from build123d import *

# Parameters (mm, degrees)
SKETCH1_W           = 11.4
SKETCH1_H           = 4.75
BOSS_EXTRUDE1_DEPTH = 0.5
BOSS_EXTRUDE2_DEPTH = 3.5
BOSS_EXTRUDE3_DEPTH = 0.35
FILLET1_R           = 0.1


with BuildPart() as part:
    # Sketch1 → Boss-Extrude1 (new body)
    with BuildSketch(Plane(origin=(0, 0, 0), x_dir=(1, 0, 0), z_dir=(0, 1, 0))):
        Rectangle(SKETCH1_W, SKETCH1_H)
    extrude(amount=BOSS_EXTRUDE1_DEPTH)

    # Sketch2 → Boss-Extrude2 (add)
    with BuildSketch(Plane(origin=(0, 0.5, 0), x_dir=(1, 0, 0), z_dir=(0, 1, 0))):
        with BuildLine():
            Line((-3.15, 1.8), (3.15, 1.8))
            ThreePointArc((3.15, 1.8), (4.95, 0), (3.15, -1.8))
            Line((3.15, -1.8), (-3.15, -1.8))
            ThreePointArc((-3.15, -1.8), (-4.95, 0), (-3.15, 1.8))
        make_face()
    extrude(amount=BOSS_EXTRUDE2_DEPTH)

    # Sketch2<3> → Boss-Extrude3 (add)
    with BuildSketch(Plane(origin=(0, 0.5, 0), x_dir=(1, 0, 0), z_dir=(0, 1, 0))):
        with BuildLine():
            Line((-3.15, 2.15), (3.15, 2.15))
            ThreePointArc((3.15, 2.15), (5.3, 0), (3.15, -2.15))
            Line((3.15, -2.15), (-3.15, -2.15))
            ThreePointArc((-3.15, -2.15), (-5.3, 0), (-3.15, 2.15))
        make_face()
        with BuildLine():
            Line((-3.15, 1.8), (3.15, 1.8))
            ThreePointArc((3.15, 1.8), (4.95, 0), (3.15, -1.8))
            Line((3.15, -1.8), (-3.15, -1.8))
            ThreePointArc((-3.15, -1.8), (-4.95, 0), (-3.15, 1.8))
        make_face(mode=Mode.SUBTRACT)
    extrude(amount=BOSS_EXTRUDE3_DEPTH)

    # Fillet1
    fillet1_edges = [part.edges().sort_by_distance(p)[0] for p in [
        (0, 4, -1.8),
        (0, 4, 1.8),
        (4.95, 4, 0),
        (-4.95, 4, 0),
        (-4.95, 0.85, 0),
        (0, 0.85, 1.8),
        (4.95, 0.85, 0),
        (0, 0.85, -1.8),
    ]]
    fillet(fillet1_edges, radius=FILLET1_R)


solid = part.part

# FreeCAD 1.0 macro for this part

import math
import FreeCAD as App
import Part
import Sketcher
from FreeCAD import Vector
Q = App.Units.Quantity


def edges_at(feature, points):
    """Names of the edges that pass closest to the given points."""
    edges = feature.Shape.Edges
    near = lambda p: min(range(len(edges)), key=lambda i: edges[i].distToShape(Part.Vertex(*p))[0])
    return sorted({f"Edge{near(p) + 1}" for p in points})


def add_polygon(sketch, points):
    """Adds a closed chain of lines whose ends are joined by coincident constraints."""
    first, n = sketch.GeometryCount, len(points)
    for a, b in zip(points, points[1:] + points[:1]):
        sketch.addGeometry(Part.LineSegment(App.Vector(*a, 0), App.Vector(*b, 0)), False)
    for i in range(n):
        sketch.addConstraint(Sketcher.Constraint("Coincident", first + i, 2, first + (i + 1) % n, 1))

doc = App.newDocument("Part")
body = doc.addObject("PartDesign::Body", "Body")

# Sketch on XZ plane
sketch1 = body.newObject("Sketcher::SketchObject", "Sketch")
sketch1.AttachmentSupport = (doc.getObject("XZ_Plane"), [""])
sketch1.MapMode = "FlatFace"
add_polygon(sketch1, [(-5.7, -2.4), (-5.7, 2.4), (5.7, 2.4), (5.7, -2.4)])  # lines 0-3
sketch1.addConstraint([
    Sketcher.Constraint("Vertical", 0),
    Sketcher.Constraint("Horizontal", 1),
    Sketcher.Constraint("Vertical", 2),
    Sketcher.Constraint("Horizontal", 3),
    Sketcher.Constraint("Symmetric", 0, 2, 2, 2, -1, 1),
    Sketcher.Constraint("DistanceX", 1, 1, 1, 2, Q("11.4 mm")),
    Sketcher.Constraint("DistanceY", 0, 1, 0, 2, Q("4.75 mm")),
])
pad1 = body.newObject("PartDesign::Pad", "Pad")
pad1.Profile = sketch1
pad1.Length = 0.5
pad1.Reversed = True

# Sketch on XZ plane
sketch2 = body.newObject("Sketcher::SketchObject", "Sketch001")
sketch2.AttachmentSupport = (doc.getObject("XZ_Plane"), [""])
sketch2.MapMode = "FlatFace"
sketch2.AttachmentOffset = App.Placement(Vector(0, 0, -0.5), App.Rotation())
sketch2.addGeometry([
    Part.LineSegment(Vector(3.1, -1.8, 0), Vector(-3.1, -1.8, 0)),
    Part.ArcOfCircle(Part.Circle(Vector(-3.1, 0, 0), Vector(0, 0, 1), 1.8), math.radians(90), math.radians(270)),
    Part.LineSegment(Vector(-3.1, 1.8, 0), Vector(3.1, 1.8, 0)),
    Part.ArcOfCircle(Part.Circle(Vector(3.1, 0, 0), Vector(0, 0, 1), 1.8), math.radians(-90), math.radians(90)),
], False)
sketch2.addConstraint([
    Sketcher.Constraint("Tangent", 0, 2, 1, 2),
    Sketcher.Constraint("Tangent", 1, 1, 2, 1),
    Sketcher.Constraint("Tangent", 2, 2, 3, 2),
    Sketcher.Constraint("Tangent", 3, 1, 0, 1),
    Sketcher.Constraint("Horizontal", 0),
    Sketcher.Constraint("Horizontal", 2),
    Sketcher.Constraint("Symmetric", 1, 3, 3, 3, -1, 1),
    Sketcher.Constraint("Radius", 1, Q("1.8 mm")),
    Sketcher.Constraint("DistanceX", 0, 2, 0, 1, Q("6.3 mm")),
])
pad2 = body.newObject("PartDesign::Pad", "Pad001")
pad2.Profile = sketch2
pad2.Length = 3.5
pad2.Reversed = True

# Sketch on XZ plane
sketch3 = body.newObject("Sketcher::SketchObject", "Sketch002")
sketch3.AttachmentSupport = (doc.getObject("XZ_Plane"), [""])
sketch3.MapMode = "FlatFace"
sketch3.AttachmentOffset = App.Placement(Vector(0, 0, -0.5), App.Rotation())
sketch3.addGeometry([
    Part.LineSegment(Vector(3.1, -2.1, 0), Vector(-3.1, -2.1, 0)),  # 0
    Part.ArcOfCircle(Part.Circle(Vector(-3.1, 0, 0), Vector(0, 0, 1), 2.1), math.radians(90), math.radians(270)),  # 1
    Part.LineSegment(Vector(-3.1, 2.1, 0), Vector(3.1, 2.1, 0)),  # 2
    Part.ArcOfCircle(Part.Circle(Vector(3.1, 0, 0), Vector(0, 0, 1), 2.1), math.radians(-90), math.radians(90)),  # 3
    Part.LineSegment(Vector(-3.1, -1.8, 0), Vector(3.1, -1.8, 0)),  # 4
    Part.ArcOfCircle(Part.Circle(Vector(3.1, 0, 0), Vector(0, 0, 1), 1.8), math.radians(-90), math.radians(90)),  # 5
    Part.LineSegment(Vector(3.1, 1.8, 0), Vector(-3.1, 1.8, 0)),  # 6
    Part.ArcOfCircle(Part.Circle(Vector(-3.1, 0, 0), Vector(0, 0, 1), 1.8), math.radians(90), math.radians(270)),  # 7
], False)
sketch3.addConstraint([
    Sketcher.Constraint("Tangent", 0, 2, 1, 2),
    Sketcher.Constraint("Tangent", 1, 1, 2, 1),
    Sketcher.Constraint("Tangent", 2, 2, 3, 2),
    Sketcher.Constraint("Tangent", 3, 1, 0, 1),
    Sketcher.Constraint("Tangent", 4, 2, 5, 1),
    Sketcher.Constraint("Tangent", 5, 2, 6, 1),
    Sketcher.Constraint("Tangent", 6, 2, 7, 1),
    Sketcher.Constraint("Tangent", 7, 2, 4, 1),
    Sketcher.Constraint("Horizontal", 0),
    Sketcher.Constraint("Horizontal", 2),
    Sketcher.Constraint("Horizontal", 4),
    Sketcher.Constraint("Horizontal", 6),
    Sketcher.Constraint("Coincident", 5, 3, 3, 3),
    Sketcher.Constraint("Symmetric", 1, 3, 3, 3, -1, 1),
    Sketcher.Constraint("Vertical", 7, 3, 0, 2),
    Sketcher.Constraint("Radius", 5, Q("1.8 mm")),
    Sketcher.Constraint("Radius", 1, Q("2.15 mm")),
    Sketcher.Constraint("DistanceX", 0, 2, 0, 1, Q("6.3 mm")),
])
pad3 = body.newObject("PartDesign::Pad", "Pad002")
pad3.Profile = sketch3
pad3.Length = 0.35
pad3.Reversed = True
doc.recompute()

fillet = body.newObject("PartDesign::Fillet", "Fillet")
fillet.Base = (pad3, edges_at(pad3, [
    (0, 4, -1.8),
    (0, 4, 1.8),
    (4.95, 4, 0),
    (-4.95, 4, 0),
    (-4.95, 0.85, 0),
    (0, 0.85, 1.8),
    (4.95, 0.85, 0),
    (0, 0.85, -1.8),
]))
fillet.Radius = 0.1

doc.recompute()
